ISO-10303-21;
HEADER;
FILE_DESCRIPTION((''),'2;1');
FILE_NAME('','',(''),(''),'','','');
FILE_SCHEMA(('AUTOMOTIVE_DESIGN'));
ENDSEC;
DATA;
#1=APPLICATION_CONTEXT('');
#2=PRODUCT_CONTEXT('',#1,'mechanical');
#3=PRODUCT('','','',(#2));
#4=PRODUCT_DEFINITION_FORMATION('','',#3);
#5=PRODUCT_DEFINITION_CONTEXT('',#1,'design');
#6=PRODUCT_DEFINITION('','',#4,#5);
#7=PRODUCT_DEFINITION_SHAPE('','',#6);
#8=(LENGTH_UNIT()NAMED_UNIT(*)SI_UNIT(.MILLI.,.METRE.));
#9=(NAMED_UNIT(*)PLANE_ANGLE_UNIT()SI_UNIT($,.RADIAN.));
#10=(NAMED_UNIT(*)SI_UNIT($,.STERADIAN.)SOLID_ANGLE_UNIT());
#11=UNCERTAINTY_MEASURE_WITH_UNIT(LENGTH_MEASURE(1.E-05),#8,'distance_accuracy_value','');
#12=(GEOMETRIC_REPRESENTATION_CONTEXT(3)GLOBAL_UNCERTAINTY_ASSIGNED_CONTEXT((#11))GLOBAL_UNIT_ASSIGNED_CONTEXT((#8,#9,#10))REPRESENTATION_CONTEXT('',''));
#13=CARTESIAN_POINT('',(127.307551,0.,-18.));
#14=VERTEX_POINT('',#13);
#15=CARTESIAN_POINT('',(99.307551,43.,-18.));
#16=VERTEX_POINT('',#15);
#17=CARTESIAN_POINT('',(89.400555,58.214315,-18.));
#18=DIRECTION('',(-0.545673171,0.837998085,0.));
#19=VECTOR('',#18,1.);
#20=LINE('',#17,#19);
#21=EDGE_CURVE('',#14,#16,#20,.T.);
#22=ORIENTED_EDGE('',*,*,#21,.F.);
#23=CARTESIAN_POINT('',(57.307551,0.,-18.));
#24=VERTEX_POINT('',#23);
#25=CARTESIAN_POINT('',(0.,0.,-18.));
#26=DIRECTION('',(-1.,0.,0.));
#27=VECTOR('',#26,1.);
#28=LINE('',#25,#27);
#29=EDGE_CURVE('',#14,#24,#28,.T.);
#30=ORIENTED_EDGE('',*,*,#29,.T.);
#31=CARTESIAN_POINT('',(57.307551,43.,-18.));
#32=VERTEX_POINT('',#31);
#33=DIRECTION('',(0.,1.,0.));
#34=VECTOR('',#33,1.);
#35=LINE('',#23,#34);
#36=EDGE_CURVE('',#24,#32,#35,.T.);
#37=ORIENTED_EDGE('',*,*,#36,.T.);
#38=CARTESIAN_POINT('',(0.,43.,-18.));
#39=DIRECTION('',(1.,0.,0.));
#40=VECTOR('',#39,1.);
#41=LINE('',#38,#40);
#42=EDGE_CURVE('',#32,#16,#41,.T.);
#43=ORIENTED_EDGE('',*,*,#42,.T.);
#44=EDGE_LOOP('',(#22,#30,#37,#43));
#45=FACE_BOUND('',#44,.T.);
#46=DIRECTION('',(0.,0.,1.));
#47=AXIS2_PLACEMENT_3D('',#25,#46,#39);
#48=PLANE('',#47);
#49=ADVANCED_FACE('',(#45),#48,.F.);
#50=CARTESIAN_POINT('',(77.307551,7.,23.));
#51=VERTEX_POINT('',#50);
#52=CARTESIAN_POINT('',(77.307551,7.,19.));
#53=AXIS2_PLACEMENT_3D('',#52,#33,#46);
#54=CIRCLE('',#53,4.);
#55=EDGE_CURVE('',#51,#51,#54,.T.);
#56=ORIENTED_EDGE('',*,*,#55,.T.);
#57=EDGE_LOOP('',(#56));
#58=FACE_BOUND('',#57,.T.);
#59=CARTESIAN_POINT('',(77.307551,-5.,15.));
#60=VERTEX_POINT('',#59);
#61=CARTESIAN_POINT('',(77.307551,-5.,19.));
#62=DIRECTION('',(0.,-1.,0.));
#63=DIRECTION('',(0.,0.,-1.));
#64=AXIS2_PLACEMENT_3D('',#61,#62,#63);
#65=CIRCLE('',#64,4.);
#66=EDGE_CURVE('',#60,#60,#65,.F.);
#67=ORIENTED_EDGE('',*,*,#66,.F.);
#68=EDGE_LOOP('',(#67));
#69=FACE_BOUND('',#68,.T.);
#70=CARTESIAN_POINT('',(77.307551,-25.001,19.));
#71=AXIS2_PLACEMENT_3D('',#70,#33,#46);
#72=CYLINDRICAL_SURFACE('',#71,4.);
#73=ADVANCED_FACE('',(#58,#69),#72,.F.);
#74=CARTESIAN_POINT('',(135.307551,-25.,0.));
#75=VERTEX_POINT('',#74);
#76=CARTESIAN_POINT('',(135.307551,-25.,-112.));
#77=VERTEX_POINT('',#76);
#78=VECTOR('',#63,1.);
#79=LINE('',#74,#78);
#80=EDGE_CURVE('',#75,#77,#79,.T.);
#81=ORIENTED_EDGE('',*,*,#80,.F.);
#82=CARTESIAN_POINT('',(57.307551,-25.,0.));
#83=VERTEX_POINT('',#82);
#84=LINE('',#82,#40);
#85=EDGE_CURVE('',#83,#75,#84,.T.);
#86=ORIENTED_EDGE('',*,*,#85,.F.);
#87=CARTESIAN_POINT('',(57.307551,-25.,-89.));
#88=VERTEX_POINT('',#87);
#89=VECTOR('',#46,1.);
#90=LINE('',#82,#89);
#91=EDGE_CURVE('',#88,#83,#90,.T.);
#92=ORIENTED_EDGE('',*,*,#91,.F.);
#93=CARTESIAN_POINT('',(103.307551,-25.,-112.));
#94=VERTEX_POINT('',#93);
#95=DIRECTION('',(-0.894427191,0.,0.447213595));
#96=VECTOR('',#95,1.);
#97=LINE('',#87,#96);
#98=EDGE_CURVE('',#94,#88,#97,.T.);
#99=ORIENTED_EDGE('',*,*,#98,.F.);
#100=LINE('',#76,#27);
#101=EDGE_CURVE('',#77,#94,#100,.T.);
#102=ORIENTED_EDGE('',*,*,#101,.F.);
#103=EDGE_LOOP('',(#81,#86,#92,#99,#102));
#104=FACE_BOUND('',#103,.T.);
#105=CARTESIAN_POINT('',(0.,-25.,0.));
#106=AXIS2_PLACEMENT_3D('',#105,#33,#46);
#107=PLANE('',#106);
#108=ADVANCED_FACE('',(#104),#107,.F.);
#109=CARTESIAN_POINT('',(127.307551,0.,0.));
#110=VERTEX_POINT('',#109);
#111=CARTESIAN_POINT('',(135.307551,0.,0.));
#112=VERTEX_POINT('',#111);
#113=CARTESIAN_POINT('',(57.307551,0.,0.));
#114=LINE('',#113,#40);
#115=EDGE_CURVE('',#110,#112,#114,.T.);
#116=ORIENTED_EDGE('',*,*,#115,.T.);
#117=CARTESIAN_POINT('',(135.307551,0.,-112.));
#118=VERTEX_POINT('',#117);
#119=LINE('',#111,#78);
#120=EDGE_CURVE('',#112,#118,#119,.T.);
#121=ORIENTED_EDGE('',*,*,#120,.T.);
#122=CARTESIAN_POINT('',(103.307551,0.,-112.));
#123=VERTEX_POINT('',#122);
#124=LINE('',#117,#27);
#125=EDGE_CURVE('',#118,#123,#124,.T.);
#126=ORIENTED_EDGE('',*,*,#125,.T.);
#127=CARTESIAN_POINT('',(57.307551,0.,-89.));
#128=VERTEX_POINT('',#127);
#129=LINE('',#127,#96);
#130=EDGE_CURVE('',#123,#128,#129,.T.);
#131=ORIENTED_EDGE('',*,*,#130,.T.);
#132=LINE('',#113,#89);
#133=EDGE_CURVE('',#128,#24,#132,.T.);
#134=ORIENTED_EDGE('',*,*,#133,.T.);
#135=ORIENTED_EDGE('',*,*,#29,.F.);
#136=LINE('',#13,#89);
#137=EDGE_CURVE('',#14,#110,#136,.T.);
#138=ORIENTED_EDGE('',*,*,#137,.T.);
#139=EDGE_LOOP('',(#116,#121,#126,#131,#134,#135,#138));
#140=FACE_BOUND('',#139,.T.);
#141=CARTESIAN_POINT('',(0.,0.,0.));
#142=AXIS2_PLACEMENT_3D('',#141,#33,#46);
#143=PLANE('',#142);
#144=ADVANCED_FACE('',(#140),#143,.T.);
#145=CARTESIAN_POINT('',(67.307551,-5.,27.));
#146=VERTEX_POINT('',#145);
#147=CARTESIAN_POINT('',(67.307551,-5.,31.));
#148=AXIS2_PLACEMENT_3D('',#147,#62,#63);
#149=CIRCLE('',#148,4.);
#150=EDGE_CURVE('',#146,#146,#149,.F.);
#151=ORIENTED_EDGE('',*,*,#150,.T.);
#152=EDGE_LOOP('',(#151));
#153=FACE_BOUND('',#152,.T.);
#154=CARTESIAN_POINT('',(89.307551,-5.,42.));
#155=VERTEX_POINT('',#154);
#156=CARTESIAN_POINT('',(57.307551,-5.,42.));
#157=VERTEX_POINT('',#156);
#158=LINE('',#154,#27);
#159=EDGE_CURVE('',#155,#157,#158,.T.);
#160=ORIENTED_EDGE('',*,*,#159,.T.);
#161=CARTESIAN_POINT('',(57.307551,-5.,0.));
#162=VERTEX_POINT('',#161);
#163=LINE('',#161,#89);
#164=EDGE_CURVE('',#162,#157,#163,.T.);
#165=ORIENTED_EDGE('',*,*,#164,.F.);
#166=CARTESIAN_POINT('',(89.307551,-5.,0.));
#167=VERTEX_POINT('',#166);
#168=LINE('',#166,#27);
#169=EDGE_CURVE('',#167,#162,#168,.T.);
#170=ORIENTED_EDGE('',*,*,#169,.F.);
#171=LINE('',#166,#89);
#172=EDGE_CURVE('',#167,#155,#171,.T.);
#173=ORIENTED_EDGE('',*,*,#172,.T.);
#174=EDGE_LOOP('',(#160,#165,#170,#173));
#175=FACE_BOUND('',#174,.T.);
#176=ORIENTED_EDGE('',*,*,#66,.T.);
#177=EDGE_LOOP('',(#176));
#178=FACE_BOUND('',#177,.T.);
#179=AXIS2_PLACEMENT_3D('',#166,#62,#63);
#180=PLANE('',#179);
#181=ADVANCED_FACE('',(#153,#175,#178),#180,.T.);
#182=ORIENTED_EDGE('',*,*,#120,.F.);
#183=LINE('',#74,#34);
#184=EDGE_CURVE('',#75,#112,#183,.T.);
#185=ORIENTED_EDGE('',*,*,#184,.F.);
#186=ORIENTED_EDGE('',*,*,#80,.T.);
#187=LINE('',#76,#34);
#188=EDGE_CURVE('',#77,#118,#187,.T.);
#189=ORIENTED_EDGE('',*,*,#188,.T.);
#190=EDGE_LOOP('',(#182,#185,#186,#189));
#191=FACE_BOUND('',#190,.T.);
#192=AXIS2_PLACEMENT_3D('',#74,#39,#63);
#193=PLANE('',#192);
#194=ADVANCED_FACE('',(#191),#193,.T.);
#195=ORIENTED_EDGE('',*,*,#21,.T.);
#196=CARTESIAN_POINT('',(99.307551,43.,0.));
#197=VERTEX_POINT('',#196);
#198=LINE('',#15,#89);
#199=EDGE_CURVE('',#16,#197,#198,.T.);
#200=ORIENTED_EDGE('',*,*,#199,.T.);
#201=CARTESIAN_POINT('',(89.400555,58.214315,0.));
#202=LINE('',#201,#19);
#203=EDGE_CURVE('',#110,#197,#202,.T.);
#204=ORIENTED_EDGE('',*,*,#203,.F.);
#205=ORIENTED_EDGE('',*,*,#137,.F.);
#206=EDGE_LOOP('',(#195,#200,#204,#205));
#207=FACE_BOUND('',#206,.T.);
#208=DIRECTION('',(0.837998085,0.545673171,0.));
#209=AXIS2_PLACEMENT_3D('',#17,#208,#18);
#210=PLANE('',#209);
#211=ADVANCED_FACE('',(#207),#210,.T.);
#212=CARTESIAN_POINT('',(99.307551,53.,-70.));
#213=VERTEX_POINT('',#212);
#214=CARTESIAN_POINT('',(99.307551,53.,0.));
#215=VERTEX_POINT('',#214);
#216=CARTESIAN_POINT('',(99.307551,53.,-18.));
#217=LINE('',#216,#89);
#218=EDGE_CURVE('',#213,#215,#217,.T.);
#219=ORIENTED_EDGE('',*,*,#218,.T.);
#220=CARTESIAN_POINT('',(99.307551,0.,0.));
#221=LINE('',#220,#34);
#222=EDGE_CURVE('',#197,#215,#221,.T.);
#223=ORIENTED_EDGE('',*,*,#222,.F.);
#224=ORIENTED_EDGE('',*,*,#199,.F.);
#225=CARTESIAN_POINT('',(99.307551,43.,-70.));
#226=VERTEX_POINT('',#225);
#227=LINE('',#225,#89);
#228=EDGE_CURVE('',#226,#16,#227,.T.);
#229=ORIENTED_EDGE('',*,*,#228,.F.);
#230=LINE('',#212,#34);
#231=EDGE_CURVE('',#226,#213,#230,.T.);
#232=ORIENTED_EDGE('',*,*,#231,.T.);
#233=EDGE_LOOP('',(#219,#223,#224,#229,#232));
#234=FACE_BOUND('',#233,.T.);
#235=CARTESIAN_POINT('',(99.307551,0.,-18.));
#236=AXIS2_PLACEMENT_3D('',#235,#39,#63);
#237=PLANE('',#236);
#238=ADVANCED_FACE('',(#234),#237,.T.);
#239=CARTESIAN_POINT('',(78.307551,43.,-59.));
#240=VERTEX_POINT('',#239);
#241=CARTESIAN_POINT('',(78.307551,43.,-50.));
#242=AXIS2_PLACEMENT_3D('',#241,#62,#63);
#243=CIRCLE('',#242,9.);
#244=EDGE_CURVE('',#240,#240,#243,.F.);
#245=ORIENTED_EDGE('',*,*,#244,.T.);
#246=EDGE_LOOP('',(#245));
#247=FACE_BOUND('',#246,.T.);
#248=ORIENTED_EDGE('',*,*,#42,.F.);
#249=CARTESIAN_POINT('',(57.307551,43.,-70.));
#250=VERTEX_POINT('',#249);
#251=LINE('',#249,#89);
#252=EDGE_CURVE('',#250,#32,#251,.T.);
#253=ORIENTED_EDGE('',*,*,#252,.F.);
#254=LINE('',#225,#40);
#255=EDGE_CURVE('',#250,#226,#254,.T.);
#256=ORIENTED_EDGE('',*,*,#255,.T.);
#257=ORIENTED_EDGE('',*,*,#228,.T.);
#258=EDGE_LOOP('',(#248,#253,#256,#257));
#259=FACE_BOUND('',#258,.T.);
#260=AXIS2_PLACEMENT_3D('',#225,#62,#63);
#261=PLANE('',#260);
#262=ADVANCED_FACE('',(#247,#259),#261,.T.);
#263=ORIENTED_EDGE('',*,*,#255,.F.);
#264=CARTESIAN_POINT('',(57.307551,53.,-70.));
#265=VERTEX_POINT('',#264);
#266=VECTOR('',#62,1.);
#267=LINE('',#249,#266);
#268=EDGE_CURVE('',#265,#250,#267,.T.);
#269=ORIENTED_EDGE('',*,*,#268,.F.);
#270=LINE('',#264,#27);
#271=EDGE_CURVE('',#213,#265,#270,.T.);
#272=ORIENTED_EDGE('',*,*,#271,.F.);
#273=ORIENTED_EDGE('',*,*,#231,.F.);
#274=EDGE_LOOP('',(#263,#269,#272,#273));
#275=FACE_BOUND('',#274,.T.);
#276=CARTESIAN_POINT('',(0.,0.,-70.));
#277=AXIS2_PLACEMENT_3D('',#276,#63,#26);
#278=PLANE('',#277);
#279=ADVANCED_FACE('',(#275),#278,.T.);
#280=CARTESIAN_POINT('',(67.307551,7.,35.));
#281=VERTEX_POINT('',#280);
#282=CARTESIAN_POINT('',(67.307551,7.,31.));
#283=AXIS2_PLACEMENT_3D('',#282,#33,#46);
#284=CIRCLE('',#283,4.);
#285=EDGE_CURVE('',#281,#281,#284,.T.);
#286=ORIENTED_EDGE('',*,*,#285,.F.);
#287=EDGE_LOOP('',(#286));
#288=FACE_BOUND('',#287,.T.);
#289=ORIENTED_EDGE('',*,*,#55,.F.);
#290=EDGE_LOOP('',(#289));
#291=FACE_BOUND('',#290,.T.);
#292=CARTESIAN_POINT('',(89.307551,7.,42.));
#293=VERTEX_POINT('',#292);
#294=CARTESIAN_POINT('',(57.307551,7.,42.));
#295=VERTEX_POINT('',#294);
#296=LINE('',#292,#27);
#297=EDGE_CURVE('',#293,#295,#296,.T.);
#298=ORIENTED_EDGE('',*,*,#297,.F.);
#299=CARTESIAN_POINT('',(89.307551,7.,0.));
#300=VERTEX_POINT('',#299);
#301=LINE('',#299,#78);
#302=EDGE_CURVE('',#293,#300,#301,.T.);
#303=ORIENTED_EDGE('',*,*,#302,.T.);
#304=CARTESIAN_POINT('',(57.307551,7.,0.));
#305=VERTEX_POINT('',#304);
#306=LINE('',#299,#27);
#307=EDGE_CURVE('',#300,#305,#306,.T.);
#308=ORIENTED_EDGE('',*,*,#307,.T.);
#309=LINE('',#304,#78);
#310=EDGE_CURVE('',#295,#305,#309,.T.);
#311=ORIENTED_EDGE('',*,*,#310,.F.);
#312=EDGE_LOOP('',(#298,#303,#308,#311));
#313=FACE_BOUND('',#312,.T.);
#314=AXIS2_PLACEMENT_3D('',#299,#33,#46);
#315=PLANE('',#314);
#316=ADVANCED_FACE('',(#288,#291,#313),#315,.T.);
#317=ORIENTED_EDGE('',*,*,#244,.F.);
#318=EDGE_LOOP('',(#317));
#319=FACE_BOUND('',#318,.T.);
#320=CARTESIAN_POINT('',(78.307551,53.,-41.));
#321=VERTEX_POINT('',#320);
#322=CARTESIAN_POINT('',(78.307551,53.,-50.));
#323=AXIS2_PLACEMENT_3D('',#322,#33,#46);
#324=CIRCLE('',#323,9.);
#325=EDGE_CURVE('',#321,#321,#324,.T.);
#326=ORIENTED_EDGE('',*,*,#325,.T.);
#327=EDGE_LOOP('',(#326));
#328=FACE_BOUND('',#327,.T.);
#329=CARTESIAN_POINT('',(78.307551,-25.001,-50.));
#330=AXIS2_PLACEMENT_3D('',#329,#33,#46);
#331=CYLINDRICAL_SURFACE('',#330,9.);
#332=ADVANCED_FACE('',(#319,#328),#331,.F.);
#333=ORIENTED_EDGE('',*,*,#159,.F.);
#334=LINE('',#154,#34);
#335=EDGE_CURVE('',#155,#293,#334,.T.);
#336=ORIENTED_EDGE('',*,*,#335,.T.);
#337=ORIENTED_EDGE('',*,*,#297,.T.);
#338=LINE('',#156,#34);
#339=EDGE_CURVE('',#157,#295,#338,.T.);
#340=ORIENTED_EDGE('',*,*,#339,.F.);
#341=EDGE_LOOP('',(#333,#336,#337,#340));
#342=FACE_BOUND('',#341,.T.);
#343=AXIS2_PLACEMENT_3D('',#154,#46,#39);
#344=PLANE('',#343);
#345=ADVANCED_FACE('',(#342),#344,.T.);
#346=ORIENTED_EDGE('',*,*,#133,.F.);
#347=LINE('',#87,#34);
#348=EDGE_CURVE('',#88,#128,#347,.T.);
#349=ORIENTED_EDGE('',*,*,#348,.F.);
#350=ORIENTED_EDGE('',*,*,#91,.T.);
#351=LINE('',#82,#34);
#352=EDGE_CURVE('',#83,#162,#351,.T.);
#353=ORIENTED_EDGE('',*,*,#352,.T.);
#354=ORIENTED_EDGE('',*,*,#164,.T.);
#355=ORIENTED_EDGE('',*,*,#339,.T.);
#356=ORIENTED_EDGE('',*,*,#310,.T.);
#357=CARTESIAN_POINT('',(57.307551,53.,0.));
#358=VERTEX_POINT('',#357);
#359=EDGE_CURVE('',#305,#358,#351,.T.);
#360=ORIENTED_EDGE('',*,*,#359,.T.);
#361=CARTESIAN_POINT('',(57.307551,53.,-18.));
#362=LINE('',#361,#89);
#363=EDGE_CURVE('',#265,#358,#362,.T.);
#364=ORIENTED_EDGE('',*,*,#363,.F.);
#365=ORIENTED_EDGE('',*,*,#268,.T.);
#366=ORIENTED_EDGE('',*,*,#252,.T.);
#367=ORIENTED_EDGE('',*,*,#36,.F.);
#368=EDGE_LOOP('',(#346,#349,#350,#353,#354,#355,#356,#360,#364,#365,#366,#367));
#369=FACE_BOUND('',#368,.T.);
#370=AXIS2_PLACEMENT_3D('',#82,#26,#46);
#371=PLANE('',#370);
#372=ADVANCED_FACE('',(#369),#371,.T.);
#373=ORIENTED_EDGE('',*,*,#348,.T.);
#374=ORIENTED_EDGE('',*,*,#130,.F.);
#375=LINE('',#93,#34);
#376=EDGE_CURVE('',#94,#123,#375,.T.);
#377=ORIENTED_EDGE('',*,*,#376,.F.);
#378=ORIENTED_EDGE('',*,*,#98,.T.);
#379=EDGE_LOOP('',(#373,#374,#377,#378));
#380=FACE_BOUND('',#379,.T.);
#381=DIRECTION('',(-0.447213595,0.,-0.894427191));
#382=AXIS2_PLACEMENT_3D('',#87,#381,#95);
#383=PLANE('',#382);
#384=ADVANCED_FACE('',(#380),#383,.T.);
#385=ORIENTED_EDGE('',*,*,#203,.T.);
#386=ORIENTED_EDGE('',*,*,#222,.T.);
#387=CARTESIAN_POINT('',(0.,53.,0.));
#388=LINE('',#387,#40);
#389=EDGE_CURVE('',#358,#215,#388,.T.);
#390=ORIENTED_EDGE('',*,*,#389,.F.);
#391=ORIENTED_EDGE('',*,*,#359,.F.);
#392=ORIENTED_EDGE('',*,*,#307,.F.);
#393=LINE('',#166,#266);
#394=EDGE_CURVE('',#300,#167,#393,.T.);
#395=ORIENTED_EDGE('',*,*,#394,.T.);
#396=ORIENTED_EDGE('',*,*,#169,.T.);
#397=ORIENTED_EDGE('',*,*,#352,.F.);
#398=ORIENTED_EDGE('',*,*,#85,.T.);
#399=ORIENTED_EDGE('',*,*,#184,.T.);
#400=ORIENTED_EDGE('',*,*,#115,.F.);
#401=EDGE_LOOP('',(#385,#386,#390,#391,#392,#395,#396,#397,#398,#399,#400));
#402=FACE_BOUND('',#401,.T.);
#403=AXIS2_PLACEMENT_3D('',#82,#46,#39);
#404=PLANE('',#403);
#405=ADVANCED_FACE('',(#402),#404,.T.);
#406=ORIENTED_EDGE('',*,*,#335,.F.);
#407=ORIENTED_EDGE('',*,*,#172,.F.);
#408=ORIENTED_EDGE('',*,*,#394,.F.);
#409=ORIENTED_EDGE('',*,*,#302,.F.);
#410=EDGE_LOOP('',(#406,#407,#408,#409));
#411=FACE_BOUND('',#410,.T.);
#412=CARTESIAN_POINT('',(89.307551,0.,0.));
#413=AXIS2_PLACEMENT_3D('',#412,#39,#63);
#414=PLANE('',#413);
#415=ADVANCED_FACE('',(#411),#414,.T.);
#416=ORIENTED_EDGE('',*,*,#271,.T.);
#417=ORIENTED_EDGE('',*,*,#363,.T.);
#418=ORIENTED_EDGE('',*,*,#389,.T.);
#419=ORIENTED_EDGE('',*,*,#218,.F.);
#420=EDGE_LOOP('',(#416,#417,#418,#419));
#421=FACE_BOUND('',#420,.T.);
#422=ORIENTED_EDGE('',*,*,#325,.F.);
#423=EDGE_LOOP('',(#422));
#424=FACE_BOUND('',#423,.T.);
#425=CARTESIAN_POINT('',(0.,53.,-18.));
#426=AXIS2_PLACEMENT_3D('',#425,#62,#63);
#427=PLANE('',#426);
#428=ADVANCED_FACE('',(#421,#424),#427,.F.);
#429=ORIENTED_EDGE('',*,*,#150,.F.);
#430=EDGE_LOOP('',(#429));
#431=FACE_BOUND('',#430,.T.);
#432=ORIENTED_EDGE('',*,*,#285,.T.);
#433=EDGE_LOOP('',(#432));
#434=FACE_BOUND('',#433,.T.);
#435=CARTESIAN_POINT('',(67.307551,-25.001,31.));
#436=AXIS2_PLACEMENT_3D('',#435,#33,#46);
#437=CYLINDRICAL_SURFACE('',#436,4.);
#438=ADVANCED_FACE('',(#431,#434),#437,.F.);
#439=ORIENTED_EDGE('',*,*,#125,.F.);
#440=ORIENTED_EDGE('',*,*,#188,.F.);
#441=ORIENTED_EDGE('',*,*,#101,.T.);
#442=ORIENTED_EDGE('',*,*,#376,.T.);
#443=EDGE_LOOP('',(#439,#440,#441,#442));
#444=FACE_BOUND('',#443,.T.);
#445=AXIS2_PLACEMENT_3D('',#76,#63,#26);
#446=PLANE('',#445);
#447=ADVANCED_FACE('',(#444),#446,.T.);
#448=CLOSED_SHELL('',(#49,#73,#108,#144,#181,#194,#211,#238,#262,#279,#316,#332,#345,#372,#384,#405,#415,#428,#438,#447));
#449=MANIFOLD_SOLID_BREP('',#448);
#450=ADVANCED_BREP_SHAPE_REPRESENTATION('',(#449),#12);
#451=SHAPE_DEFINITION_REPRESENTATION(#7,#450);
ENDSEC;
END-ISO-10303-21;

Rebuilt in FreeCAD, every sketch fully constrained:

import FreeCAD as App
import Part
import Sketcher


def add_polygon(sketch, points):
    """Adds a closed chain of lines whose ends are joined by coincident constraints."""
    first, n = sketch.GeometryCount, len(points)
    for a, b in zip(points, points[1:] + points[:1]):
        sketch.addGeometry(Part.LineSegment(App.Vector(*a, 0), App.Vector(*b, 0)), False)
    for i in range(n):
        sketch.addConstraint(Sketcher.Constraint("Coincident", first + i, 2, first + (i + 1) % n, 1))

doc = App.newDocument("Part")
body = doc.addObject("PartDesign::Body", "Body")

sketch1 = body.newObject("Sketcher::SketchObject", "Sketch")
sketch1.AttachmentSupport = (doc.getObject("XZ_Plane"), [""])
sketch1.MapMode = "FlatFace"
add_polygon(sketch1, [(57, 0), (135, 0), (135, -112), (103, -112), (57, -89)])
sketch1.addConstraint(Sketcher.Constraint("Horizontal", 0))
sketch1.addConstraint(Sketcher.Constraint("Vertical", 1))
sketch1.addConstraint(Sketcher.Constraint("Horizontal", 2))
sketch1.addConstraint(Sketcher.Constraint("Vertical", 4))
sketch1.addConstraint(Sketcher.Constraint("PointOnObject", 0, 2, -1))
sketch1.addConstraint(Sketcher.Constraint("DistanceX", 0, 1, 0, 2, 78.0))
sketch1.addConstraint(Sketcher.Constraint("DistanceX", 2, 2, 2, 1, 32.0))
sketch1.addConstraint(Sketcher.Constraint("DistanceY", 1, 2, 1, 1, 112.0))
sketch1.addConstraint(Sketcher.Constraint("DistanceY", 4, 1, 4, 2, 89.0))
sketch1.addConstraint(Sketcher.Constraint("DistanceX", -1, 1, 0, 2, 135.307551))
pad1 = body.newObject("PartDesign::Pad", "Pad")
pad1.Profile = sketch1
pad1.Length = 25

sketch2 = body.newObject("Sketcher::SketchObject", "Sketch001")
sketch2.AttachmentSupport = (doc.getObject("XY_Plane"), [""])
sketch2.MapMode = "FlatFace"
add_polygon(sketch2, [(57, 0), (127, 0), (99, 43), (99, 53), (57, 53)])
sketch2.addConstraint(Sketcher.Constraint("Horizontal", 0))
sketch2.addConstraint(Sketcher.Constraint("Vertical", 2))
sketch2.addConstraint(Sketcher.Constraint("Horizontal", 3))
sketch2.addConstraint(Sketcher.Constraint("Vertical", 4))
sketch2.addConstraint(Sketcher.Constraint("PointOnObject", 0, 2, -1))
sketch2.addConstraint(Sketcher.Constraint("DistanceX", 0, 1, 0, 2, 70.0))
sketch2.addConstraint(Sketcher.Constraint("DistanceX", 3, 2, 3, 1, 42.0))
sketch2.addConstraint(Sketcher.Constraint("DistanceY", 2, 1, 2, 2, 10.0))
sketch2.addConstraint(Sketcher.Constraint("DistanceY", 4, 2, 4, 1, 53.0))
sketch2.addConstraint(Sketcher.Constraint("DistanceX", -1, 1, 0, 2, 127.307551))
pad2 = body.newObject("PartDesign::Pad", "Pad001")
pad2.Profile = sketch2
pad2.Length = 18
pad2.Reversed = True

sketch3 = body.newObject("Sketcher::SketchObject", "Sketch002")
sketch3.AttachmentSupport = (doc.getObject("XY_Plane"), [""])
sketch3.MapMode = "FlatFace"
add_polygon(sketch3, [(57, 53), (57, 43), (99, 43), (99, 53)])
sketch3.addConstraint(Sketcher.Constraint("Vertical", 0))
sketch3.addConstraint(Sketcher.Constraint("Horizontal", 1))
sketch3.addConstraint(Sketcher.Constraint("Vertical", 2))
sketch3.addConstraint(Sketcher.Constraint("Horizontal", 3))
sketch3.addConstraint(Sketcher.Constraint("DistanceX", 1, 1, 1, 2, 42.0))
sketch3.addConstraint(Sketcher.Constraint("DistanceY", 0, 2, 0, 1, 10.0))
sketch3.addConstraint(Sketcher.Constraint("DistanceY", -1, 1, 0, 2, 43.0))
sketch3.addConstraint(Sketcher.Constraint("DistanceX", -1, 1, 0, 2, 57.307551))
pad3 = body.newObject("PartDesign::Pad", "Pad002")
pad3.Profile = sketch3
pad3.Length = 70
pad3.Reversed = True

sketch4 = body.newObject("Sketcher::SketchObject", "Sketch003")
sketch4.AttachmentSupport = (doc.getObject("XZ_Plane"), [""])
sketch4.MapMode = "FlatFace"
sketch4.AttachmentOffset = App.Placement(App.Vector(0, 0, -53), App.Rotation())
sketch4.addGeometry(Part.Circle(App.Vector(78, -50, 0), App.Vector(0, 0, 1), 9), False)
sketch4.addConstraint(Sketcher.Constraint("Diameter", 0, 18.0))
sketch4.addConstraint(Sketcher.Constraint("DistanceY", 0, 3, -1, 1, 50.0))
sketch4.addConstraint(Sketcher.Constraint("DistanceX", -1, 1, 0, 3, 78.307551))
pocket1 = body.newObject("PartDesign::Pocket", "Pocket")
pocket1.Profile = sketch4
pocket1.Type = "UpToFirst"
pocket1.Reversed = True

sketch5 = body.newObject("Sketcher::SketchObject", "Sketch004")
sketch5.AttachmentSupport = (doc.getObject("YZ_Plane"), [""])
sketch5.MapMode = "FlatFace"
sketch5.AttachmentOffset = App.Placement(App.Vector(0, 0, 57.307551), App.Rotation())
add_polygon(sketch5, [(7, 0), (-5, 0), (-5, 42), (7, 42)])
sketch5.addConstraint(Sketcher.Constraint("Horizontal", 0))
sketch5.addConstraint(Sketcher.Constraint("Vertical", 1))
sketch5.addConstraint(Sketcher.Constraint("Horizontal", 2))
sketch5.addConstraint(Sketcher.Constraint("Vertical", 3))
sketch5.addConstraint(Sketcher.Constraint("PointOnObject", 0, 2, -1))
sketch5.addConstraint(Sketcher.Constraint("DistanceX", 0, 2, 0, 1, 12.0))
sketch5.addConstraint(Sketcher.Constraint("DistanceY", 1, 1, 1, 2, 42.0))
sketch5.addConstraint(Sketcher.Constraint("DistanceX", 0, 2, -1, 1, 5.0))
pad4 = body.newObject("PartDesign::Pad", "Pad003")
pad4.Profile = sketch5
pad4.Length = 32

sketch6 = body.newObject("Sketcher::SketchObject", "Sketch005")
sketch6.AttachmentSupport = (doc.getObject("XZ_Plane"), [""])
sketch6.MapMode = "FlatFace"
sketch6.AttachmentOffset = App.Placement(App.Vector(0, 0, -7), App.Rotation())
sketch6.addGeometry(Part.Circle(App.Vector(67.3, 31, 0), App.Vector(0, 0, 1), 4), False)
sketch6.addConstraint(Sketcher.Constraint("Diameter", 0, 8.0))
sketch6.addConstraint(Sketcher.Constraint("DistanceY", -1, 1, 0, 3, 31.0))
sketch6.addConstraint(Sketcher.Constraint("DistanceX", -1, 1, 0, 3, 67.307551))
pocket2 = body.newObject("PartDesign::Pocket", "Pocket001")
pocket2.Profile = sketch6
pocket2.Type = "UpToFirst"
pocket2.Reversed = True

sketch7 = body.newObject("Sketcher::SketchObject", "Sketch006")
sketch7.AttachmentSupport = (doc.getObject("XZ_Plane"), [""])
sketch7.MapMode = "FlatFace"
sketch7.AttachmentOffset = App.Placement(App.Vector(0, 0, -7), App.Rotation())
sketch7.addGeometry(Part.Circle(App.Vector(77.3, 19, 0), App.Vector(0, 0, 1), 4), False)
sketch7.addConstraint(Sketcher.Constraint("Diameter", 0, 8.0))
sketch7.addConstraint(Sketcher.Constraint("DistanceY", -1, 1, 0, 3, 19.0))
sketch7.addConstraint(Sketcher.Constraint("DistanceX", -1, 1, 0, 3, 77.307551))
pocket3 = body.newObject("PartDesign::Pocket", "Pocket002")
pocket3.Profile = sketch7
pocket3.Type = "UpToFirst"
pocket3.Reversed = True

doc.recompute()
